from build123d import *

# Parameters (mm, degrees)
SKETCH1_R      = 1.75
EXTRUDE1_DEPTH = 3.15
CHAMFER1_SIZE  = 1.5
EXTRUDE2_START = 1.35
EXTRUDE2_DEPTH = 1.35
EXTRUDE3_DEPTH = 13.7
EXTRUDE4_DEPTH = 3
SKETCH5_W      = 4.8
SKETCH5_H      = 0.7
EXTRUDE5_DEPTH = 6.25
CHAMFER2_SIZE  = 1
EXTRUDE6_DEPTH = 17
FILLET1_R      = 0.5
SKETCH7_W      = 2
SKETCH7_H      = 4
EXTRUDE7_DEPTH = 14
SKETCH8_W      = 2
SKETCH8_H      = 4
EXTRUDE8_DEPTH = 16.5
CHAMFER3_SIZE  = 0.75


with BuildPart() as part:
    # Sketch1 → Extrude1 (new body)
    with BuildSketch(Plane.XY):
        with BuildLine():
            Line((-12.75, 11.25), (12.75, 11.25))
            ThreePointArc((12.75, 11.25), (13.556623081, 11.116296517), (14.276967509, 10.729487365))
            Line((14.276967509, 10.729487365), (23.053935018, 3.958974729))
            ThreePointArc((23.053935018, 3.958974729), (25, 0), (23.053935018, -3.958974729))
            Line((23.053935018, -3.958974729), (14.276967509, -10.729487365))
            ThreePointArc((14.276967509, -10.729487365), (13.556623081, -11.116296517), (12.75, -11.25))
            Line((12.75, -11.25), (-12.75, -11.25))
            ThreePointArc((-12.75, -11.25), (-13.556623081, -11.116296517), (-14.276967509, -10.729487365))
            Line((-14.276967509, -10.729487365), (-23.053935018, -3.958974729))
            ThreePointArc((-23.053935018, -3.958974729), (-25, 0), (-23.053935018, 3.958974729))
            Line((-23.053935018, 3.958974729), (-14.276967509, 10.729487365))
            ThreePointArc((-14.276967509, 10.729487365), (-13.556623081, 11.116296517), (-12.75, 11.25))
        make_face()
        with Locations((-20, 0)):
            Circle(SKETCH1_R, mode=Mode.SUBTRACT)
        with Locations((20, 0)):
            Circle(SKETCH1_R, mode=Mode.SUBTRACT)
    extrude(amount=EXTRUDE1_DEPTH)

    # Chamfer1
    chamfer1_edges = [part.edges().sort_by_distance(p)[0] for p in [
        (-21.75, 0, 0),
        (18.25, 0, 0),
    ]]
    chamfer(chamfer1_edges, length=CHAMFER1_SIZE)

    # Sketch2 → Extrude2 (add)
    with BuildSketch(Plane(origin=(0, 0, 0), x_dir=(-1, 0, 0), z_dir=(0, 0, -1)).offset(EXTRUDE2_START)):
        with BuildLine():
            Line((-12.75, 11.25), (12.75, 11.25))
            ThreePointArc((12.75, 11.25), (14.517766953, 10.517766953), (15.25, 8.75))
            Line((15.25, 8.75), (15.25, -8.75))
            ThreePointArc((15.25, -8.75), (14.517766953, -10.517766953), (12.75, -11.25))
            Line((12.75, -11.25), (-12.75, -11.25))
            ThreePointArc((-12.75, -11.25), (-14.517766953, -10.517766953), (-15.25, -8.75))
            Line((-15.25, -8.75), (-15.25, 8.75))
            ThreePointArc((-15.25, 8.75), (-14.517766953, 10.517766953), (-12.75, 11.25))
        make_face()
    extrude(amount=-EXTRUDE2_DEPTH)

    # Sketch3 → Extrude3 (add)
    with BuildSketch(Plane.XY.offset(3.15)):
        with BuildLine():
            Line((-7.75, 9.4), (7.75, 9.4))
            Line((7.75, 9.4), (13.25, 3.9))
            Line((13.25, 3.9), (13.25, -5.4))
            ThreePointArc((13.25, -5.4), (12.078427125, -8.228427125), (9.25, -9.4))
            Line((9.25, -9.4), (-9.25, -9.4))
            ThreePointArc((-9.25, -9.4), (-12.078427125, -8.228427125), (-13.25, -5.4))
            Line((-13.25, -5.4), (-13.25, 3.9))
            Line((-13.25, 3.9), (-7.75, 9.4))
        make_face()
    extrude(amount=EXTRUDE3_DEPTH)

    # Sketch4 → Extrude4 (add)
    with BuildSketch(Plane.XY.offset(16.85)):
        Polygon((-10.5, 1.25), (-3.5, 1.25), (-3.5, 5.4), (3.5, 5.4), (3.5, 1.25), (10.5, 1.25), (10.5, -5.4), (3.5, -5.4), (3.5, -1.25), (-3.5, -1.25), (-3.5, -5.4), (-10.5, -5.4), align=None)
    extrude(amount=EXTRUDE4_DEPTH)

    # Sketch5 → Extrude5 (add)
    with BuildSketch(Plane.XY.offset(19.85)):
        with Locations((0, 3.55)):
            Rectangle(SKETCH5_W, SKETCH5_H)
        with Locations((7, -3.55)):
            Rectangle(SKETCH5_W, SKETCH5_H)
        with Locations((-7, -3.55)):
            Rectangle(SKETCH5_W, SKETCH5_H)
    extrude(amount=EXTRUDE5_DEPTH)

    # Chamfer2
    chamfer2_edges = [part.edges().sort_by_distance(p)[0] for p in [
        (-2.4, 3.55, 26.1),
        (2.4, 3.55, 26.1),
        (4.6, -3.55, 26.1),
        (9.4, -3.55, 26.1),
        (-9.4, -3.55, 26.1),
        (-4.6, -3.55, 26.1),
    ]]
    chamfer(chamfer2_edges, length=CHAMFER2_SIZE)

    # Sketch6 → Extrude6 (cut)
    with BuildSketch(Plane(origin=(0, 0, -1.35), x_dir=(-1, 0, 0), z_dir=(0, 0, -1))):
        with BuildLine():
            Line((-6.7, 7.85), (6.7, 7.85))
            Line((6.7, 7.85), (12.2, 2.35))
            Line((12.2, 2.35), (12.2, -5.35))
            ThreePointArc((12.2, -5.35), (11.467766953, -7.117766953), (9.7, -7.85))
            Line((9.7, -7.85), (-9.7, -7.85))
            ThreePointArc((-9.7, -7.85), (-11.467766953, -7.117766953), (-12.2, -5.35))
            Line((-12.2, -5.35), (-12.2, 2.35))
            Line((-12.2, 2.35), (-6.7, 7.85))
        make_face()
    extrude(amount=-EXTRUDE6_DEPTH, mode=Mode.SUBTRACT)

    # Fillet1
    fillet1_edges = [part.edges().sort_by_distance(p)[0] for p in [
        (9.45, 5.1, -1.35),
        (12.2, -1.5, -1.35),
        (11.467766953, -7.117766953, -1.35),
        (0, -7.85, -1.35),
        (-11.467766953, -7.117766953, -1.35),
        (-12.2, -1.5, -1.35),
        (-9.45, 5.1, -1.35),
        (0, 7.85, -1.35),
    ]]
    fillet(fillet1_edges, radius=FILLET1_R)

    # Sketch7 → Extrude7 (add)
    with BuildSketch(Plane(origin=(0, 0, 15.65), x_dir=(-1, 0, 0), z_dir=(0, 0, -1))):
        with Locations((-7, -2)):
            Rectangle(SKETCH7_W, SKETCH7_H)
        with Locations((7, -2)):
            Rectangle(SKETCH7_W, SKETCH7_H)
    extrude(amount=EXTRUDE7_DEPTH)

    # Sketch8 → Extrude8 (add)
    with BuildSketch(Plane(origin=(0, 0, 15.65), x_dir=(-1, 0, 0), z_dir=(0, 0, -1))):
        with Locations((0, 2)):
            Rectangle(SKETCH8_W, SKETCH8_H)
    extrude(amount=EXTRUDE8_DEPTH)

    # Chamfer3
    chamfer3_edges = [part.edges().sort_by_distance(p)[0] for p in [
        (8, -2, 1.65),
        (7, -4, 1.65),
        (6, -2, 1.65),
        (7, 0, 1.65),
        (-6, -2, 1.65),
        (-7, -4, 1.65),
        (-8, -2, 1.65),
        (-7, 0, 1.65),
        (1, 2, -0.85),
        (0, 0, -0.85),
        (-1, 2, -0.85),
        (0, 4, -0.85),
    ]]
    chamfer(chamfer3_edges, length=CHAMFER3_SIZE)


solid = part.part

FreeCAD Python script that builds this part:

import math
import FreeCAD as App
import Part
import Sketcher
Q = App.Units.Quantity


def edges_at(feature, points):
    """Names of the edges that pass closest to the given points."""
    edges = feature.Shape.Edges
    near = lambda p: min(range(len(edges)), key=lambda i: edges[i].distToShape(Part.Vertex(*p))[0])
    return sorted({f"Edge{near(p) + 1}" for p in points})

doc = App.newDocument("Part")
params = doc.addObject("Spreadsheet::Sheet", "Params")
for row, (alias, value) in enumerate([
    ("sketch1_radius", "5 mm"),
    ("sketch1_diameter", "3.5 mm"),
    ("sketch1_radius2", "2.5 mm"),
    ("sketch1_width", "25.5 mm"),
    ("pad1_length", "3.15 mm"),
    ("chamfer_size", "1.5 mm"),
    ("sketch2_radius", "2.5 mm"),
    ("sketch2_width", "25.5 mm"),
    ("sketch2_height", "17.5 mm"),
    ("pad2_length", "1.35 mm"),
    ("sketch3_radius", "4 mm"),
    ("sketch3_width", "15.5 mm"),
    ("sketch3_width2", "18.5 mm"),
    ("sketch3_height", "9.3 mm"),
    ("pad3_length", "13.7 mm"),
    ("sketch4_width", "7 mm"),
    ("sketch4_height", "6.65 mm"),
    ("sketch4_height2", "4.15 mm"),
    ("pad4_length", "3 mm"),
    ("sketch5_width", "4.8 mm"),
    ("sketch5_height", "0.7 mm"),
    ("pad5_length", "6.25 mm"),
    ("chamfer2_size", "1 mm"),
    ("sketch6_radius", "2.5 mm"),
    ("sketch6_width", "13.4 mm"),
    ("sketch6_width2", "19.4 mm"),
    ("sketch6_height", "7.7 mm"),
    ("pocket1_length", "17 mm"),
    ("fillet_radius", "0.5 mm"),
    ("sketch7_width", "2 mm"),
    ("sketch7_height", "4 mm"),
    ("pad6_length", "14 mm"),
    ("sketch8_width", "2 mm"),
    ("sketch8_height", "4 mm"),
    ("pad7_length", "16.5 mm"),
    ("chamfer3_size", "0.75 mm"),
], start=1):
    params.set(f"A{row}", alias)
    params.set(f"B{row}", "=" + value)
    params.setAlias(f"B{row}", alias)

body = doc.addObject("PartDesign::Body", "Body")

sketch1 = body.newObject("Sketcher::SketchObject", "Sketch")
sketch1.AttachmentSupport = (doc.getObject("XY_Plane"), [""])
sketch1.MapMode = "FlatFace"
sketch1.addGeometry(Part.LineSegment(App.Vector(12.8, 11.2, 0), App.Vector(-12.8, 11.2, 0)), False)
sketch1.addGeometry(Part.ArcOfCircle(Part.Circle(App.Vector(-12.8, 8.8, 0), App.Vector(0, 0, 1), 2.5), math.radians(90), math.radians(128)), False)
sketch1.addGeometry(Part.LineSegment(App.Vector(-14.3, 10.7, 0), App.Vector(-23.1, 4, 0)), False)
sketch1.addGeometry(Part.ArcOfCircle(Part.Circle(App.Vector(-20, 0, 0), App.Vector(0, 0, 1), 5), math.radians(128), math.radians(232)), False)
sketch1.addGeometry(Part.LineSegment(App.Vector(-23.1, -4, 0), App.Vector(-14.3, -10.7, 0)), False)
sketch1.addGeometry(Part.ArcOfCircle(Part.Circle(App.Vector(-12.8, -8.8, 0), App.Vector(0, 0, 1), 2.5), math.radians(-128), math.radians(-90)), False)
sketch1.addGeometry(Part.LineSegment(App.Vector(-12.8, -11.2, 0), App.Vector(12.8, -11.2, 0)), False)
sketch1.addGeometry(Part.ArcOfCircle(Part.Circle(App.Vector(12.8, -8.8, 0), App.Vector(0, 0, 1), 2.5), math.radians(-90), math.radians(-52)), False)
sketch1.addGeometry(Part.LineSegment(App.Vector(14.3, -10.7, 0), App.Vector(23.1, -4, 0)), False)
sketch1.addGeometry(Part.ArcOfCircle(Part.Circle(App.Vector(20, 0, 0), App.Vector(0, 0, 1), 5), math.radians(-52), math.radians(52)), False)
sketch1.addGeometry(Part.LineSegment(App.Vector(23.1, 4, 0), App.Vector(14.3, 10.7, 0)), False)
sketch1.addGeometry(Part.ArcOfCircle(Part.Circle(App.Vector(12.8, 8.8, 0), App.Vector(0, 0, 1), 2.5), math.radians(52), math.radians(90)), False)
sketch1.addGeometry(Part.Circle(App.Vector(20, 0, 0), App.Vector(0, 0, 1), 1.8), False)
sketch1.addGeometry(Part.Circle(App.Vector(-20, 0, 0), App.Vector(0, 0, 1), 1.8), False)
sketch1.addConstraint(Sketcher.Constraint("Tangent", 0, 2, 1, 1))
sketch1.addConstraint(Sketcher.Constraint("Tangent", 1, 2, 2, 1))
sketch1.addConstraint(Sketcher.Constraint("Tangent", 2, 2, 3, 1))
sketch1.addConstraint(Sketcher.Constraint("Tangent", 3, 2, 4, 1))
sketch1.addConstraint(Sketcher.Constraint("Tangent", 4, 2, 5, 1))
sketch1.addConstraint(Sketcher.Constraint("Tangent", 5, 2, 6, 1))
sketch1.addConstraint(Sketcher.Constraint("Tangent", 6, 2, 7, 1))
sketch1.addConstraint(Sketcher.Constraint("Tangent", 7, 2, 8, 1))
sketch1.addConstraint(Sketcher.Constraint("Tangent", 8, 2, 9, 1))
sketch1.addConstraint(Sketcher.Constraint("Tangent", 9, 2, 10, 1))
sketch1.addConstraint(Sketcher.Constraint("Tangent", 10, 2, 11, 1))
sketch1.addConstraint(Sketcher.Constraint("Tangent", 11, 2, 0, 1))
sketch1.addConstraint(Sketcher.Constraint("Horizontal", 0))
sketch1.addConstraint(Sketcher.Constraint("Horizontal", 6))
sketch1.addConstraint(Sketcher.Constraint("Coincident", 12, 3, 9, 3))
sketch1.addConstraint(Sketcher.Constraint("Coincident", 13, 3, 3, 3))
sketch1.addConstraint(Sketcher.Constraint("Equal", 1, 5))
sketch1.addConstraint(Sketcher.Constraint("Equal", 5, 7))
sketch1.addConstraint(Sketcher.Constraint("Equal", 3, 9))
sketch1.addConstraint(Sketcher.Constraint("Equal", 7, 11))
sketch1.addConstraint(Sketcher.Constraint("Equal", 12, 13))
sketch1.addConstraint(Sketcher.Constraint("Symmetric", 1, 3, 7, 3, -1, 1))
sketch1.addConstraint(Sketcher.Constraint("Symmetric", 3, 3, 9, 3, -1, 1))
sketch1.addConstraint(Sketcher.Constraint("Symmetric", 4, 2, 7, 2, -2))
sketch1.addConstraint(Sketcher.Constraint("Parallel", 4, 10))
sketch1.addConstraint(Sketcher.Constraint("Radius", 3, Q("5 mm")))
sketch1.addConstraint(Sketcher.Constraint("Diameter", 12, Q("3.5 mm")))
sketch1.addConstraint(Sketcher.Constraint("Radius", 1, Q("2.5 mm")))
sketch1.addConstraint(Sketcher.Constraint("DistanceX", 0, 2, 0, 1, Q("25.5 mm")))
sketch1.addConstraint(Sketcher.Constraint("DistanceX", 3, 3, -1, 1, Q("20 mm")))
sketch1.addConstraint(Sketcher.Constraint("DistanceY", 5, 3, 0, 2, Q("20 mm")))
sketch1.setExpression("Constraints[25]", "Params.sketch1_radius")
sketch1.setExpression("Constraints[26]", "Params.sketch1_diameter")
sketch1.setExpression("Constraints[27]", "Params.sketch1_radius2")
sketch1.setExpression("Constraints[28]", "Params.sketch1_width")
pad1 = body.newObject("PartDesign::Pad", "Pad")
pad1.Profile = sketch1
pad1.setExpression("Length", "Params.pad1_length")
doc.recompute()

chamfer = body.newObject("PartDesign::Chamfer", "Chamfer")
chamfer.Base = (pad1, edges_at(pad1, [(-21.75, 0, 0), (18.25, 0, 0)]))
chamfer.setExpression("Size", "Params.chamfer_size")

sketch2 = body.newObject("Sketcher::SketchObject", "Sketch001")
sketch2.AttachmentSupport = (doc.getObject("XY_Plane"), [""])
sketch2.MapMode = "FlatFace"
sketch2.AttachmentOffset = App.Placement(App.Vector(0, 0, -1.35), App.Rotation())
sketch2.addGeometry(Part.LineSegment(App.Vector(-12.8, 11.2, 0), App.Vector(12.8, 11.2, 0)), False)
sketch2.addGeometry(Part.ArcOfCircle(Part.Circle(App.Vector(12.8, 8.8, 0), App.Vector(0, 0, 1), 2.5), math.radians(0), math.radians(90)), False)
sketch2.addGeometry(Part.LineSegment(App.Vector(15.2, 8.8, 0), App.Vector(15.2, -8.8, 0)), False)
sketch2.addGeometry(Part.ArcOfCircle(Part.Circle(App.Vector(12.8, -8.8, 0), App.Vector(0, 0, 1), 2.5), math.radians(-90), math.radians(0)), False)
sketch2.addGeometry(Part.LineSegment(App.Vector(12.8, -11.2, 0), App.Vector(-12.8, -11.2, 0)), False)
sketch2.addGeometry(Part.ArcOfCircle(Part.Circle(App.Vector(-12.8, -8.8, 0), App.Vector(0, 0, 1), 2.5), math.radians(180), math.radians(270)), False)
sketch2.addGeometry(Part.LineSegment(App.Vector(-15.2, -8.8, 0), App.Vector(-15.2, 8.8, 0)), False)
sketch2.addGeometry(Part.ArcOfCircle(Part.Circle(App.Vector(-12.8, 8.8, 0), App.Vector(0, 0, 1), 2.5), math.radians(90), math.radians(180)), False)
sketch2.addConstraint(Sketcher.Constraint("Tangent", 0, 2, 1, 2))
sketch2.addConstraint(Sketcher.Constraint("Tangent", 1, 1, 2, 1))
sketch2.addConstraint(Sketcher.Constraint("Tangent", 2, 2, 3, 2))
sketch2.addConstraint(Sketcher.Constraint("Tangent", 3, 1, 4, 1))
sketch2.addConstraint(Sketcher.Constraint("Tangent", 4, 2, 5, 2))
sketch2.addConstraint(Sketcher.Constraint("Tangent", 5, 1, 6, 1))
sketch2.addConstraint(Sketcher.Constraint("Tangent", 6, 2, 7, 2))
sketch2.addConstraint(Sketcher.Constraint("Tangent", 7, 1, 0, 1))
sketch2.addConstraint(Sketcher.Constraint("Horizontal", 0))
sketch2.addConstraint(Sketcher.Constraint("Vertical", 2))
sketch2.addConstraint(Sketcher.Constraint("Horizontal", 4))
sketch2.addConstraint(Sketcher.Constraint("Vertical", 6))
sketch2.addConstraint(Sketcher.Constraint("Equal", 1, 3))
sketch2.addConstraint(Sketcher.Constraint("Equal", 3, 5))
sketch2.addConstraint(Sketcher.Constraint("Equal", 5, 7))
sketch2.addConstraint(Sketcher.Constraint("Symmetric", 1, 3, 5, 3, -1, 1))
sketch2.addConstraint(Sketcher.Constraint("Radius", 1, Q("2.5 mm")))
sketch2.addConstraint(Sketcher.Constraint("DistanceX", 0, 1, 0, 2, Q("25.5 mm")))
sketch2.addConstraint(Sketcher.Constraint("DistanceY", 2, 2, 2, 1, Q("17.5 mm")))
sketch2.setExpression("Constraints[16]", "Params.sketch2_radius")
sketch2.setExpression("Constraints[17]", "Params.sketch2_width")
sketch2.setExpression("Constraints[18]", "Params.sketch2_height")
pad2 = body.newObject("PartDesign::Pad", "Pad001")
pad2.Profile = sketch2
pad2.setExpression("Length", "Params.pad2_length")

sketch3 = body.newObject("Sketcher::SketchObject", "Sketch002")
sketch3.AttachmentSupport = (doc.getObject("XY_Plane"), [""])
sketch3.MapMode = "FlatFace"
sketch3.AttachmentOffset = App.Placement(App.Vector(0, 0, 3.15), App.Rotation())
sketch3.addGeometry(Part.LineSegment(App.Vector(7.8, 9.4, 0), App.Vector(-7.8, 9.4, 0)), False)
sketch3.addGeometry(Part.LineSegment(App.Vector(-7.8, 9.4, 0), App.Vector(-13.2, 3.9, 0)), False)
sketch3.addGeometry(Part.LineSegment(App.Vector(-13.2, 3.9, 0), App.Vector(-13.2, -5.4, 0)), False)
sketch3.addGeometry(Part.ArcOfCircle(Part.Circle(App.Vector(-9.3, -5.4, 0), App.Vector(0, 0, 1), 4), math.radians(180), math.radians(270)), False)
sketch3.addGeometry(Part.LineSegment(App.Vector(-9.2, -9.4, 0), App.Vector(9.2, -9.4, 0)), False)
sketch3.addGeometry(Part.ArcOfCircle(Part.Circle(App.Vector(9.3, -5.4, 0), App.Vector(0, 0, 1), 4), math.radians(-90), math.radians(0)), False)
sketch3.addGeometry(Part.LineSegment(App.Vector(13.2, -5.4, 0), App.Vector(13.2, 3.9, 0)), False)
sketch3.addGeometry(Part.LineSegment(App.Vector(13.2, 3.9, 0), App.Vector(7.8, 9.4, 0)), False)
sketch3.addConstraint(Sketcher.Constraint("Coincident", 0, 2, 1, 1))
sketch3.addConstraint(Sketcher.Constraint("Coincident", 1, 2, 2, 1))
sketch3.addConstraint(Sketcher.Constraint("Tangent", 2, 2, 3, 1))
sketch3.addConstraint(Sketcher.Constraint("Tangent", 3, 2, 4, 1))
sketch3.addConstraint(Sketcher.Constraint("Tangent", 4, 2, 5, 1))
sketch3.addConstraint(Sketcher.Constraint("Tangent", 5, 2, 6, 1))
sketch3.addConstraint(Sketcher.Constraint("Coincident", 6, 2, 7, 1))
sketch3.addConstraint(Sketcher.Constraint("Coincident", 7, 2, 0, 1))
sketch3.addConstraint(Sketcher.Constraint("Horizontal", 0))
sketch3.addConstraint(Sketcher.Constraint("Vertical", 2))
sketch3.addConstraint(Sketcher.Constraint("Horizontal", 4))
sketch3.addConstraint(Sketcher.Constraint("Vertical", 6))
sketch3.addConstraint(Sketcher.Constraint("Equal", 3, 5))
sketch3.addConstraint(Sketcher.Constraint("Symmetric", 1, 2, 6, 2, -2))
sketch3.addConstraint(Sketcher.Constraint("Perpendicular", 1, 7))
sketch3.addConstraint(Sketcher.Constraint("Equal", 1, 7))
sketch3.addConstraint(Sketcher.Constraint("Radius", 3, Q("4 mm")))
sketch3.addConstraint(Sketcher.Constraint("DistanceX", 0, 2, 0, 1, Q("15.5 mm")))
sketch3.addConstraint(Sketcher.Constraint("DistanceX", 4, 1, 4, 2, Q("18.5 mm")))
sketch3.addConstraint(Sketcher.Constraint("DistanceY", 2, 2, 2, 1, Q("9.3 mm")))
sketch3.addConstraint(Sketcher.Constraint("DistanceY", 3, 3, -1, 1, Q("5.4 mm")))
sketch3.setExpression("Constraints[16]", "Params.sketch3_radius")
sketch3.setExpression("Constraints[17]", "Params.sketch3_width")
sketch3.setExpression("Constraints[18]", "Params.sketch3_width2")
sketch3.setExpression("Constraints[19]", "Params.sketch3_height")
pad3 = body.newObject("PartDesign::Pad", "Pad002")
pad3.Profile = sketch3
pad3.setExpression("Length", "Params.pad3_length")

sketch4 = body.newObject("Sketcher::SketchObject", "Sketch003")
sketch4.AttachmentSupport = (doc.getObject("XY_Plane"), [""])
sketch4.MapMode = "FlatFace"
sketch4.AttachmentOffset = App.Placement(App.Vector(0, 0, 16.85), App.Rotation())
sketch4.addGeometry(Part.LineSegment(App.Vector(-3.5, 1.2, 0), App.Vector(-10.5, 1.2, 0)), False)
sketch4.addGeometry(Part.LineSegment(App.Vector(-10.5, 1.2, 0), App.Vector(-10.5, -5.4, 0)), False)
sketch4.addGeometry(Part.LineSegment(App.Vector(-10.5, -5.4, 0), App.Vector(-3.5, -5.4, 0)), False)
sketch4.addGeometry(Part.LineSegment(App.Vector(-3.5, -5.4, 0), App.Vector(-3.5, -1.2, 0)), False)
sketch4.addGeometry(Part.LineSegment(App.Vector(-3.5, -1.2, 0), App.Vector(3.5, -1.2, 0)), False)
sketch4.addGeometry(Part.LineSegment(App.Vector(3.5, -1.2, 0), App.Vector(3.5, -5.4, 0)), False)
sketch4.addGeometry(Part.LineSegment(App.Vector(3.5, -5.4, 0), App.Vector(10.5, -5.4, 0)), False)
sketch4.addGeometry(Part.LineSegment(App.Vector(10.5, -5.4, 0), App.Vector(10.5, 1.2, 0)), False)
sketch4.addGeometry(Part.LineSegment(App.Vector(10.5, 1.2, 0), App.Vector(3.5, 1.2, 0)), False)
sketch4.addGeometry(Part.LineSegment(App.Vector(3.5, 1.2, 0), App.Vector(3.5, 5.4, 0)), False)
sketch4.addGeometry(Part.LineSegment(App.Vector(3.5, 5.4, 0), App.Vector(-3.5, 5.4, 0)), False)
sketch4.addGeometry(Part.LineSegment(App.Vector(-3.5, 5.4, 0), App.Vector(-3.5, 1.2, 0)), False)
sketch4.addConstraint(Sketcher.Constraint("Coincident", 0, 2, 1, 1))
sketch4.addConstraint(Sketcher.Constraint("Coincident", 1, 2, 2, 1))
sketch4.addConstraint(Sketcher.Constraint("Coincident", 2, 2, 3, 1))
sketch4.addConstraint(Sketcher.Constraint("Coincident", 3, 2, 4, 1))
sketch4.addConstraint(Sketcher.Constraint("Coincident", 4, 2, 5, 1))
sketch4.addConstraint(Sketcher.Constraint("Coincident", 5, 2, 6, 1))
sketch4.addConstraint(Sketcher.Constraint("Coincident", 6, 2, 7, 1))
sketch4.addConstraint(Sketcher.Constraint("Coincident", 7, 2, 8, 1))
sketch4.addConstraint(Sketcher.Constraint("Coincident", 8, 2, 9, 1))
sketch4.addConstraint(Sketcher.Constraint("Coincident", 9, 2, 10, 1))
sketch4.addConstraint(Sketcher.Constraint("Coincident", 10, 2, 11, 1))
sketch4.addConstraint(Sketcher.Constraint("Coincident", 11, 2, 0, 1))
sketch4.addConstraint(Sketcher.Constraint("Horizontal", 0))
sketch4.addConstraint(Sketcher.Constraint("Vertical", 1))
sketch4.addConstraint(Sketcher.Constraint("Horizontal", 2))
sketch4.addConstraint(Sketcher.Constraint("Vertical", 3))
sketch4.addConstraint(Sketcher.Constraint("Horizontal", 4))
sketch4.addConstraint(Sketcher.Constraint("Vertical", 5))
sketch4.addConstraint(Sketcher.Constraint("Horizontal", 6))
sketch4.addConstraint(Sketcher.Constraint("Vertical", 7))
sketch4.addConstraint(Sketcher.Constraint("Horizontal", 8))
sketch4.addConstraint(Sketcher.Constraint("Vertical", 9))
sketch4.addConstraint(Sketcher.Constraint("Horizontal", 10))
sketch4.addConstraint(Sketcher.Constraint("Vertical", 11))
sketch4.addConstraint(Sketcher.Constraint("Symmetric", 3, 2, 8, 2, -1, 1))
sketch4.addConstraint(Sketcher.Constraint("Symmetric", 5, 2, 10, 2, -1, 1))
sketch4.addConstraint(Sketcher.Constraint("Symmetric", 2, 2, 5, 2, -2))
sketch4.addConstraint(Sketcher.Constraint("Symmetric", 0, 2, 7, 2, -2))
sketch4.addConstraint(Sketcher.Constraint("Equal", 2, 4))
sketch4.addConstraint(Sketcher.Constraint("DistanceX", 0, 2, 0, 1, Q("7 mm")))
sketch4.addConstraint(Sketcher.Constraint("DistanceY", 1, 2, 1, 1, Q("6.65 mm")))
sketch4.addConstraint(Sketcher.Constraint("DistanceY", 3, 1, 3, 2, Q("4.15 mm")))
sketch4.setExpression("Constraints[29]", "Params.sketch4_width")
sketch4.setExpression("Constraints[30]", "Params.sketch4_height")
sketch4.setExpression("Constraints[31]", "Params.sketch4_height2")
pad4 = body.newObject("PartDesign::Pad", "Pad003")
pad4.Profile = sketch4
pad4.setExpression("Length", "Params.pad4_length")

sketch5 = body.newObject("Sketcher::SketchObject", "Sketch004")
sketch5.AttachmentSupport = (doc.getObject("XY_Plane"), [""])
sketch5.MapMode = "FlatFace"
sketch5.AttachmentOffset = App.Placement(App.Vector(0, 0, 19.85), App.Rotation())
sketch5.addGeometry(Part.LineSegment(App.Vector(-2.4, 3.9, 0), App.Vector(-2.4, 3.2, 0)), False)
sketch5.addGeometry(Part.LineSegment(App.Vector(-2.4, 3.2, 0), App.Vector(2.4, 3.2, 0)), False)
sketch5.addGeometry(Part.LineSegment(App.Vector(2.4, 3.2, 0), App.Vector(2.4, 3.9, 0)), False)
sketch5.addGeometry(Part.LineSegment(App.Vector(2.4, 3.9, 0), App.Vector(-2.4, 3.9, 0)), False)
sketch5.addGeometry(Part.LineSegment(App.Vector(4.6, -3.2, 0), App.Vector(4.6, -3.9, 0)), False)
sketch5.addGeometry(Part.LineSegment(App.Vector(4.6, -3.9, 0), App.Vector(9.4, -3.9, 0)), False)
sketch5.addGeometry(Part.LineSegment(App.Vector(9.4, -3.9, 0), App.Vector(9.4, -3.2, 0)), False)
sketch5.addGeometry(Part.LineSegment(App.Vector(9.4, -3.2, 0), App.Vector(4.6, -3.2, 0)), False)
sketch5.addGeometry(Part.LineSegment(App.Vector(-9.4, -3.2, 0), App.Vector(-9.4, -3.9, 0)), False)
sketch5.addGeometry(Part.LineSegment(App.Vector(-9.4, -3.9, 0), App.Vector(-4.6, -3.9, 0)), False)
sketch5.addGeometry(Part.LineSegment(App.Vector(-4.6, -3.9, 0), App.Vector(-4.6, -3.2, 0)), False)
sketch5.addGeometry(Part.LineSegment(App.Vector(-4.6, -3.2, 0), App.Vector(-9.4, -3.2, 0)), False)
sketch5.addConstraint(Sketcher.Constraint("Coincident", 0, 2, 1, 1))
sketch5.addConstraint(Sketcher.Constraint("Coincident", 1, 2, 2, 1))
sketch5.addConstraint(Sketcher.Constraint("Coincident", 2, 2, 3, 1))
sketch5.addConstraint(Sketcher.Constraint("Coincident", 3, 2, 0, 1))
sketch5.addConstraint(Sketcher.Constraint("Coincident", 4, 2, 5, 1))
sketch5.addConstraint(Sketcher.Constraint("Coincident", 5, 2, 6, 1))
sketch5.addConstraint(Sketcher.Constraint("Coincident", 6, 2, 7, 1))
sketch5.addConstraint(Sketcher.Constraint("Coincident", 7, 2, 4, 1))
sketch5.addConstraint(Sketcher.Constraint("Coincident", 8, 2, 9, 1))
sketch5.addConstraint(Sketcher.Constraint("Coincident", 9, 2, 10, 1))
sketch5.addConstraint(Sketcher.Constraint("Coincident", 10, 2, 11, 1))
sketch5.addConstraint(Sketcher.Constraint("Coincident", 11, 2, 8, 1))
sketch5.addConstraint(Sketcher.Constraint("Vertical", 0))
sketch5.addConstraint(Sketcher.Constraint("Horizontal", 1))
sketch5.addConstraint(Sketcher.Constraint("Vertical", 2))
sketch5.addConstraint(Sketcher.Constraint("Horizontal", 3))
sketch5.addConstraint(Sketcher.Constraint("Vertical", 4))
sketch5.addConstraint(Sketcher.Constraint("Horizontal", 5))
sketch5.addConstraint(Sketcher.Constraint("Vertical", 6))
sketch5.addConstraint(Sketcher.Constraint("Horizontal", 7))
sketch5.addConstraint(Sketcher.Constraint("Vertical", 8))
sketch5.addConstraint(Sketcher.Constraint("Horizontal", 9))
sketch5.addConstraint(Sketcher.Constraint("Vertical", 10))
sketch5.addConstraint(Sketcher.Constraint("Horizontal", 11))
sketch5.addConstraint(Sketcher.Constraint("Symmetric", 5, 2, 8, 2, -2))
sketch5.addConstraint(Sketcher.Constraint("Symmetric", 7, 2, 10, 2, -2))
sketch5.addConstraint(Sketcher.Constraint("Equal", 3, 5))
sketch5.addConstraint(Sketcher.Constraint("Equal", 2, 4))
sketch5.addConstraint(Sketcher.Constraint("DistanceX", 1, 1, 1, 2, Q("4.8 mm")))
sketch5.addConstraint(Sketcher.Constraint("DistanceY", 0, 2, 0, 1, Q("0.7 mm")))
sketch5.addConstraint(Sketcher.Constraint("DistanceX", 0, 2, 4, 2, Q("7 mm")))
sketch5.addConstraint(Sketcher.Constraint("DistanceX", 8, 2, 0, 2, Q("7 mm")))
sketch5.addConstraint(Sketcher.Constraint("DistanceY", -1, 1, 0, 2, Q("3.2 mm")))
sketch5.addConstraint(Sketcher.Constraint("DistanceY", 4, 2, -1, 1, Q("3.9 mm")))
sketch5.setExpression("Constraints[28]", "Params.sketch5_width")
sketch5.setExpression("Constraints[29]", "Params.sketch5_height")
pad5 = body.newObject("PartDesign::Pad", "Pad004")
pad5.Profile = sketch5
pad5.setExpression("Length", "Params.pad5_length")
doc.recompute()

chamfer2 = body.newObject("PartDesign::Chamfer", "Chamfer001")
chamfer2.Base = (pad5, edges_at(pad5, [
    (-2.4, 3.55, 26.1),
    (2.4, 3.55, 26.1),
    (4.6, -3.55, 26.1),
    (9.4, -3.55, 26.1),
    (-9.4, -3.55, 26.1),
    (-4.6, -3.55, 26.1),
]))
chamfer2.setExpression("Size", "Params.chamfer2_size")

sketch6 = body.newObject("Sketcher::SketchObject", "Sketch005")
sketch6.AttachmentSupport = (doc.getObject("XY_Plane"), [""])
sketch6.MapMode = "FlatFace"
sketch6.AttachmentOffset = App.Placement(App.Vector(0, 0, -1.35), App.Rotation())
sketch6.addGeometry(Part.LineSegment(App.Vector(-6.7, 7.8, 0), App.Vector(6.7, 7.8, 0)), False)
sketch6.addGeometry(Part.LineSegment(App.Vector(6.7, 7.8, 0), App.Vector(12.2, 2.4, 0)), False)
sketch6.addGeometry(Part.LineSegment(App.Vector(12.2, 2.4, 0), App.Vector(12.2, -5.3, 0)), False)
sketch6.addGeometry(Part.ArcOfCircle(Part.Circle(App.Vector(9.7, -5.3, 0), App.Vector(0, 0, 1), 2.5), math.radians(-90), math.radians(0)), False)
sketch6.addGeometry(Part.LineSegment(App.Vector(9.7, -7.8, 0), App.Vector(-9.7, -7.8, 0)), False)
sketch6.addGeometry(Part.ArcOfCircle(Part.Circle(App.Vector(-9.7, -5.3, 0), App.Vector(0, 0, 1), 2.5), math.radians(180), math.radians(270)), False)
sketch6.addGeometry(Part.LineSegment(App.Vector(-12.2, -5.3, 0), App.Vector(-12.2, 2.4, 0)), False)
sketch6.addGeometry(Part.LineSegment(App.Vector(-12.2, 2.4, 0), App.Vector(-6.7, 7.8, 0)), False)
sketch6.addConstraint(Sketcher.Constraint("Coincident", 0, 2, 1, 1))
sketch6.addConstraint(Sketcher.Constraint("Coincident", 1, 2, 2, 1))
sketch6.addConstraint(Sketcher.Constraint("Tangent", 2, 2, 3, 2))
sketch6.addConstraint(Sketcher.Constraint("Tangent", 3, 1, 4, 1))
sketch6.addConstraint(Sketcher.Constraint("Tangent", 4, 2, 5, 2))
sketch6.addConstraint(Sketcher.Constraint("Tangent", 5, 1, 6, 1))
sketch6.addConstraint(Sketcher.Constraint("Coincident", 6, 2, 7, 1))
sketch6.addConstraint(Sketcher.Constraint("Coincident", 7, 2, 0, 1))
sketch6.addConstraint(Sketcher.Constraint("Horizontal", 0))
sketch6.addConstraint(Sketcher.Constraint("Vertical", 2))
sketch6.addConstraint(Sketcher.Constraint("Horizontal", 4))
sketch6.addConstraint(Sketcher.Constraint("Vertical", 6))
sketch6.addConstraint(Sketcher.Constraint("Equal", 3, 5))
sketch6.addConstraint(Sketcher.Constraint("Symmetric", 1, 2, 6, 2, -2))
sketch6.addConstraint(Sketcher.Constraint("Perpendicular", 1, 7))
sketch6.addConstraint(Sketcher.Constraint("Equal", 1, 7))
sketch6.addConstraint(Sketcher.Constraint("Radius", 3, Q("2.5 mm")))
sketch6.addConstraint(Sketcher.Constraint("DistanceX", 0, 1, 0, 2, Q("13.4 mm")))
sketch6.addConstraint(Sketcher.Constraint("DistanceX", 4, 2, 4, 1, Q("19.4 mm")))
sketch6.addConstraint(Sketcher.Constraint("DistanceY", 2, 2, 2, 1, Q("7.7 mm")))
sketch6.addConstraint(Sketcher.Constraint("DistanceY", 3, 3, -1, 1, Q("5.35 mm")))
sketch6.setExpression("Constraints[16]", "Params.sketch6_radius")
sketch6.setExpression("Constraints[17]", "Params.sketch6_width")
sketch6.setExpression("Constraints[18]", "Params.sketch6_width2")
sketch6.setExpression("Constraints[19]", "Params.sketch6_height")
pocket1 = body.newObject("PartDesign::Pocket", "Pocket")
pocket1.Profile = sketch6
pocket1.setExpression("Length", "Params.pocket1_length")
pocket1.Reversed = True
doc.recompute()

fillet = body.newObject("PartDesign::Fillet", "Fillet")
fillet.Base = (pocket1, edges_at(pocket1, [
    (9.45, 5.1, -1.35),
    (12.2, -1.5, -1.35),
    (11.468, -7.118, -1.35),
    (0, -7.85, -1.35),
    (-11.468, -7.118, -1.35),
    (-12.2, -1.5, -1.35),
    (-9.45, 5.1, -1.35),
    (0, 7.85, -1.35),
]))
fillet.setExpression("Radius", "Params.fillet_radius")

sketch7 = body.newObject("Sketcher::SketchObject", "Sketch006")
sketch7.AttachmentSupport = (doc.getObject("XY_Plane"), [""])
sketch7.MapMode = "FlatFace"
sketch7.AttachmentOffset = App.Placement(App.Vector(0, 0, 15.65), App.Rotation())
sketch7.addGeometry(Part.LineSegment(App.Vector(8, 0, 0), App.Vector(8, -4, 0)), False)
sketch7.addGeometry(Part.LineSegment(App.Vector(8, -4, 0), App.Vector(6, -4, 0)), False)
sketch7.addGeometry(Part.LineSegment(App.Vector(6, -4, 0), App.Vector(6, 0, 0)), False)
sketch7.addGeometry(Part.LineSegment(App.Vector(6, 0, 0), App.Vector(8, 0, 0)), False)
sketch7.addGeometry(Part.LineSegment(App.Vector(-6, 0, 0), App.Vector(-6, -4, 0)), False)
sketch7.addGeometry(Part.LineSegment(App.Vector(-6, -4, 0), App.Vector(-8, -4, 0)), False)
sketch7.addGeometry(Part.LineSegment(App.Vector(-8, -4, 0), App.Vector(-8, 0, 0)), False)
sketch7.addGeometry(Part.LineSegment(App.Vector(-8, 0, 0), App.Vector(-6, 0, 0)), False)
sketch7.addConstraint(Sketcher.Constraint("Coincident", 0, 2, 1, 1))
sketch7.addConstraint(Sketcher.Constraint("Coincident", 1, 2, 2, 1))
sketch7.addConstraint(Sketcher.Constraint("Coincident", 2, 2, 3, 1))
sketch7.addConstraint(Sketcher.Constraint("Coincident", 3, 2, 0, 1))
sketch7.addConstraint(Sketcher.Constraint("Coincident", 4, 2, 5, 1))
sketch7.addConstraint(Sketcher.Constraint("Coincident", 5, 2, 6, 1))
sketch7.addConstraint(Sketcher.Constraint("Coincident", 6, 2, 7, 1))
sketch7.addConstraint(Sketcher.Constraint("Coincident", 7, 2, 4, 1))
sketch7.addConstraint(Sketcher.Constraint("Vertical", 0))
sketch7.addConstraint(Sketcher.Constraint("Horizontal", 1))
sketch7.addConstraint(Sketcher.Constraint("Vertical", 2))
sketch7.addConstraint(Sketcher.Constraint("Horizontal", 3))
sketch7.addConstraint(Sketcher.Constraint("Vertical", 4))
sketch7.addConstraint(Sketcher.Constraint("Horizontal", 5))
sketch7.addConstraint(Sketcher.Constraint("Vertical", 6))
sketch7.addConstraint(Sketcher.Constraint("Horizontal", 7))
sketch7.addConstraint(Sketcher.Constraint("Symmetric", 3, 2, 6, 2, -1, 1))
sketch7.addConstraint(Sketcher.Constraint("Symmetric", 1, 2, 4, 2, -2))
sketch7.addConstraint(Sketcher.Constraint("PointOnObject", 2, 2, -1))
sketch7.addConstraint(Sketcher.Constraint("DistanceX", 1, 2, 1, 1, Q("2 mm")))
sketch7.addConstraint(Sketcher.Constraint("DistanceY", 0, 2, 0, 1, Q("4 mm")))
sketch7.addConstraint(Sketcher.Constraint("DistanceX", -1, 1, 0, 2, Q("8 mm")))
sketch7.setExpression("Constraints[19]", "Params.sketch7_width")
sketch7.setExpression("Constraints[20]", "Params.sketch7_height")
pad6 = body.newObject("PartDesign::Pad", "Pad005")
pad6.Profile = sketch7
pad6.setExpression("Length", "Params.pad6_length")
pad6.Reversed = True

sketch8 = body.newObject("Sketcher::SketchObject", "Sketch007")
sketch8.AttachmentSupport = (doc.getObject("XY_Plane"), [""])
sketch8.MapMode = "FlatFace"
sketch8.AttachmentOffset = App.Placement(App.Vector(0, 0, 15.65), App.Rotation())
sketch8.addGeometry(Part.LineSegment(App.Vector(1, 4, 0), App.Vector(1, 0, 0)), False)
sketch8.addGeometry(Part.LineSegment(App.Vector(1, 0, 0), App.Vector(-1, 0, 0)), False)
sketch8.addGeometry(Part.LineSegment(App.Vector(-1, 0, 0), App.Vector(-1, 4, 0)), False)
sketch8.addGeometry(Part.LineSegment(App.Vector(-1, 4, 0), App.Vector(1, 4, 0)), False)
sketch8.addConstraint(Sketcher.Constraint("Coincident", 0, 2, 1, 1))
sketch8.addConstraint(Sketcher.Constraint("Coincident", 1, 2, 2, 1))
sketch8.addConstraint(Sketcher.Constraint("Coincident", 2, 2, 3, 1))
sketch8.addConstraint(Sketcher.Constraint("Coincident", 3, 2, 0, 1))
sketch8.addConstraint(Sketcher.Constraint("Vertical", 0))
sketch8.addConstraint(Sketcher.Constraint("Horizontal", 1))
sketch8.addConstraint(Sketcher.Constraint("Vertical", 2))
sketch8.addConstraint(Sketcher.Constraint("Horizontal", 3))
sketch8.addConstraint(Sketcher.Constraint("Symmetric", 0, 2, 1, 2, -1, 1))
sketch8.addConstraint(Sketcher.Constraint("DistanceX", 1, 2, 1, 1, Q("2 mm")))
sketch8.addConstraint(Sketcher.Constraint("DistanceY", 0, 2, 0, 1, Q("4 mm")))
sketch8.setExpression("Constraints[9]", "Params.sketch8_width")
sketch8.setExpression("Constraints[10]", "Params.sketch8_height")
pad7 = body.newObject("PartDesign::Pad", "Pad006")
pad7.Profile = sketch8
pad7.setExpression("Length", "Params.pad7_length")
pad7.Reversed = True
doc.recompute()

chamfer3 = body.newObject("PartDesign::Chamfer", "Chamfer002")
chamfer3.Base = (pad7, edges_at(pad7, [
    (8, -2, 1.65),
    (7, -4, 1.65),
    (6, -2, 1.65),
    (7, 0, 1.65),
    (-6, -2, 1.65),
    (-7, -4, 1.65),
    (-8, -2, 1.65),
    (-7, 0, 1.65),
    (1, 2, -0.85),
    (0, 0, -0.85),
    (-1, 2, -0.85),
    (0, 4, -0.85),
]))
chamfer3.setExpression("Size", "Params.chamfer3_size")

doc.recompute()
